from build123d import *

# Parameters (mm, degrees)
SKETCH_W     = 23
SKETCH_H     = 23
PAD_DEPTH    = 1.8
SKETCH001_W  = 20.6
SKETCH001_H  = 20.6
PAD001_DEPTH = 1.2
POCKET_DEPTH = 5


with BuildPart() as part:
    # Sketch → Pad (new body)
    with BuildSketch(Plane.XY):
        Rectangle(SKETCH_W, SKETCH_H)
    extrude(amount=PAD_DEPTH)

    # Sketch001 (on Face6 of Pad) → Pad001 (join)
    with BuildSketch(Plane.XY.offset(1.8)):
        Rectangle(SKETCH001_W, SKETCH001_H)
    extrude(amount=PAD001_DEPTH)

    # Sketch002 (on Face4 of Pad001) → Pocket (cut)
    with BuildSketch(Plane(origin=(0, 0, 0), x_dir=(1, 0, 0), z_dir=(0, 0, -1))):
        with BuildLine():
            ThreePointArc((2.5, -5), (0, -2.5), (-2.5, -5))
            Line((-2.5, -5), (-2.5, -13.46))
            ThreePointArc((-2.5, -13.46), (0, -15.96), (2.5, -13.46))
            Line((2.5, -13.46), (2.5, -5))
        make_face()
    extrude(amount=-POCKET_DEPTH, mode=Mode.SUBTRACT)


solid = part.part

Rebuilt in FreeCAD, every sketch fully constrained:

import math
import FreeCAD as App
import Part
import Sketcher

V = App.Vector

doc = App.newDocument("Part")
body = doc.addObject("PartDesign::Body", "Body")

# Sketch on XY plane
sketch1 = body.newObject("Sketcher::SketchObject", "Sketch")
sketch1.AttachmentSupport = (doc.getObject("XY_Plane"), [""])
sketch1.MapMode = "FlatFace"
sketch1.addGeometry([
    Part.LineSegment(V(-12, 12, 0), V(-12, -12, 0)),
    Part.LineSegment(V(-12, -12, 0), V(12, -12, 0)),
    Part.LineSegment(V(12, -12, 0), V(12, 12, 0)),
    Part.LineSegment(V(12, 12, 0), V(-12, 12, 0)),
], False)
sketch1.addConstraint([
    Sketcher.Constraint("Coincident", 0, 2, 1, 1),
    Sketcher.Constraint("Coincident", 1, 2, 2, 1),
    Sketcher.Constraint("Coincident", 2, 2, 3, 1),
    Sketcher.Constraint("Coincident", 3, 2, 0, 1),
    Sketcher.Constraint("Vertical", 0),
    Sketcher.Constraint("Horizontal", 1),
    Sketcher.Constraint("Vertical", 2),
    Sketcher.Constraint("Horizontal", 3),
    Sketcher.Constraint("Symmetric", 0, 2, 2, 2, -1, 1),
    Sketcher.Constraint("Equal", 3, 0),
    Sketcher.Constraint("DistanceX", 1, 1, 1, 2, 23.0),
])
pad1 = body.newObject("PartDesign::Pad", "Pad")
pad1.Profile = sketch1
pad1.Length = 1.8

# Sketch on XY plane
sketch2 = body.newObject("Sketcher::SketchObject", "Sketch001")
sketch2.AttachmentSupport = (doc.getObject("XY_Plane"), [""])
sketch2.MapMode = "FlatFace"
sketch2.AttachmentOffset = App.Placement(V(0, 0, 1.8), App.Rotation())
sketch2.addGeometry([
    Part.LineSegment(V(-10, 10, 0), V(-10, -10, 0)),
    Part.LineSegment(V(-10, -10, 0), V(10, -10, 0)),
    Part.LineSegment(V(10, -10, 0), V(10, 10, 0)),
    Part.LineSegment(V(10, 10, 0), V(-10, 10, 0)),
], False)
sketch2.addConstraint([
    Sketcher.Constraint("Coincident", 0, 2, 1, 1),
    Sketcher.Constraint("Coincident", 1, 2, 2, 1),
    Sketcher.Constraint("Coincident", 2, 2, 3, 1),
    Sketcher.Constraint("Coincident", 3, 2, 0, 1),
    Sketcher.Constraint("Vertical", 0),
    Sketcher.Constraint("Horizontal", 1),
    Sketcher.Constraint("Vertical", 2),
    Sketcher.Constraint("Horizontal", 3),
    Sketcher.Constraint("Symmetric", 0, 2, 2, 2, -1, 1),
    Sketcher.Constraint("Equal", 3, 0),
    Sketcher.Constraint("DistanceX", 1, 1, 1, 2, 20.6),
])
pad2 = body.newObject("PartDesign::Pad", "Pad001")
pad2.Profile = sketch2
pad2.Length = 1.2

# Sketch on XY plane
sketch3 = body.newObject("Sketcher::SketchObject", "Sketch002")
sketch3.AttachmentSupport = (doc.getObject("XY_Plane"), [""])
sketch3.MapMode = "FlatFace"
sketch3.addGeometry([
    Part.ArcOfCircle(Part.Circle(V(0, 5, 0), V(0, 0, 1), 2.5), math.radians(180), math.radians(360)),
    Part.LineSegment(V(-2.5, 5, 0), V(-2.5, 13.5, 0)),
    Part.ArcOfCircle(Part.Circle(V(0, 13.5, 0), V(0, 0, 1), 2.5), math.radians(0), math.radians(180)),
    Part.LineSegment(V(2.5, 13.5, 0), V(2.5, 5, 0)),
], False)
sketch3.addConstraint([
    Sketcher.Constraint("Tangent", 0, 1, 1, 1),
    Sketcher.Constraint("Tangent", 1, 2, 2, 2),
    Sketcher.Constraint("Tangent", 2, 1, 3, 1),
    Sketcher.Constraint("Tangent", 3, 2, 0, 2),
    Sketcher.Constraint("Vertical", 1),
    Sketcher.Constraint("Vertical", 3),
    Sketcher.Constraint("PointOnObject", 0, 3, -2),
    Sketcher.Constraint("Radius", 0, 2.5),
    Sketcher.Constraint("DistanceY", -1, 1, 0, 3, 5.0),
    Sketcher.Constraint("DistanceY", 1, 1, 1, 2, 8.46),
])
pocket1 = body.newObject("PartDesign::Pocket", "Pocket")
pocket1.Profile = sketch3
pocket1.Length = 5
pocket1.Reversed = True

doc.recompute()
